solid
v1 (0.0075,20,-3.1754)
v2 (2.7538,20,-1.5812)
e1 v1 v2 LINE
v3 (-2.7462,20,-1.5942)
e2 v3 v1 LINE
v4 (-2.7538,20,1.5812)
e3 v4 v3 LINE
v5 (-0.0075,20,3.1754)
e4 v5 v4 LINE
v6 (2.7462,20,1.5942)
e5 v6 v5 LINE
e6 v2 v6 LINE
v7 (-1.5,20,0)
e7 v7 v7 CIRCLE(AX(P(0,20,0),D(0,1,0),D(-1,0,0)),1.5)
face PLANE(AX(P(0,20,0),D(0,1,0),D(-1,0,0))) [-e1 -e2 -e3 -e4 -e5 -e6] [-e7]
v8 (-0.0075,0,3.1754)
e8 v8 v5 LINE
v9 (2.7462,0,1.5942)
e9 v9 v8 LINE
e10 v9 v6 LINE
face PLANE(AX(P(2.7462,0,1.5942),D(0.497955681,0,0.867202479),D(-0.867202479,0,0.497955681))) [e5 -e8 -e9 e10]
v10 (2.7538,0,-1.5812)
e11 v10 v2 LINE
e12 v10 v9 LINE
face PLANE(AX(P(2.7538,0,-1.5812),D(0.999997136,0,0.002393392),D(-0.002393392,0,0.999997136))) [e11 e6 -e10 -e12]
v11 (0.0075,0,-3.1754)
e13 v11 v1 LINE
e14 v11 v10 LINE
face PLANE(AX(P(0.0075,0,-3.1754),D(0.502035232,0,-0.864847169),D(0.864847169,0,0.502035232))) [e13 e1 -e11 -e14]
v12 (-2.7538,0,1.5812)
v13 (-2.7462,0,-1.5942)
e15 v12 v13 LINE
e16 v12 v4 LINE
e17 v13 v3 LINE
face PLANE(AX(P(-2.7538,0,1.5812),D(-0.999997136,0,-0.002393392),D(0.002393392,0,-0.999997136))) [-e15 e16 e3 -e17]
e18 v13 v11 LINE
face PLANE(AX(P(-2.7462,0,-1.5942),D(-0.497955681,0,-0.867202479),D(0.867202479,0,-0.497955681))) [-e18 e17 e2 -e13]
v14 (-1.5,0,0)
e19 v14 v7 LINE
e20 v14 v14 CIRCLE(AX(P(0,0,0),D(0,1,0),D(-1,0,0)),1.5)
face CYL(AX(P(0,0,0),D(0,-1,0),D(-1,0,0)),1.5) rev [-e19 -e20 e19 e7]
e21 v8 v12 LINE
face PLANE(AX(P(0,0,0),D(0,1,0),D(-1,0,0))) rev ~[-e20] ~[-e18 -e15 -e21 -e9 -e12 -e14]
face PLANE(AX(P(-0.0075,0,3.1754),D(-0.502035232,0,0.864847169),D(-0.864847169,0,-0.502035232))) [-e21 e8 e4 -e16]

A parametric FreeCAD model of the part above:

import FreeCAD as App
import Part
import Sketcher
from FreeCAD import Vector


def add_polygon(sketch, points):
    """Adds a closed chain of lines whose ends are joined by coincident constraints."""
    first, n = sketch.GeometryCount, len(points)
    for a, b in zip(points, points[1:] + points[:1]):
        sketch.addGeometry(Part.LineSegment(App.Vector(*a, 0), App.Vector(*b, 0)), False)
    for i in range(n):
        sketch.addConstraint(Sketcher.Constraint("Coincident", first + i, 2, first + (i + 1) % n, 1))

doc = App.newDocument("Part")
body = doc.addObject("PartDesign::Body", "Body")

sketch1 = body.newObject("Sketcher::SketchObject", "Sketch")
sketch1.AttachmentSupport = (doc.getObject("XZ_Plane"), [""])
sketch1.MapMode = "FlatFace"
add_polygon(sketch1, [(-0.0075, 3.1754), (2.7462, 1.5942), (2.7538, -1.5812), (0.0075, -3.1754), (-2.7462, -1.5942), (-2.7538, 1.5812)])
sketch1.addGeometry(Part.Circle(Vector(0, 0, 0), Vector(0, 0, 1), 1.5), False)
sketch1.addConstraint([
    Sketcher.Constraint("Coincident", 6, 3, -1, 1),
    Sketcher.Constraint("Symmetric", 0, 2, 3, 2, -1, 1),
    Sketcher.Constraint("Symmetric", 1, 2, 4, 2, -1, 1),
    Sketcher.Constraint("Symmetric", 2, 2, 5, 2, -1, 1),
    Sketcher.Constraint("Equal", 0, 1),
    Sketcher.Constraint("Equal", 1, 2),
    Sketcher.Constraint("Diameter", 6, 3.0),
    Sketcher.Constraint("DistanceX", 3, 2, 1, 2, 5.5),
    Sketcher.Constraint("DistanceY", 3, 2, 1, 2, 0.013),
    Sketcher.Constraint("Distance", 0, 3.1754),
    Sketcher.Constraint("DistanceX", -1, 1, 0, 2, 2.7462),
])
pad1 = body.newObject("PartDesign::Pad", "Pad")
pad1.Profile = sketch1
pad1.Length = 20
pad1.Reversed = True

doc.recompute()
